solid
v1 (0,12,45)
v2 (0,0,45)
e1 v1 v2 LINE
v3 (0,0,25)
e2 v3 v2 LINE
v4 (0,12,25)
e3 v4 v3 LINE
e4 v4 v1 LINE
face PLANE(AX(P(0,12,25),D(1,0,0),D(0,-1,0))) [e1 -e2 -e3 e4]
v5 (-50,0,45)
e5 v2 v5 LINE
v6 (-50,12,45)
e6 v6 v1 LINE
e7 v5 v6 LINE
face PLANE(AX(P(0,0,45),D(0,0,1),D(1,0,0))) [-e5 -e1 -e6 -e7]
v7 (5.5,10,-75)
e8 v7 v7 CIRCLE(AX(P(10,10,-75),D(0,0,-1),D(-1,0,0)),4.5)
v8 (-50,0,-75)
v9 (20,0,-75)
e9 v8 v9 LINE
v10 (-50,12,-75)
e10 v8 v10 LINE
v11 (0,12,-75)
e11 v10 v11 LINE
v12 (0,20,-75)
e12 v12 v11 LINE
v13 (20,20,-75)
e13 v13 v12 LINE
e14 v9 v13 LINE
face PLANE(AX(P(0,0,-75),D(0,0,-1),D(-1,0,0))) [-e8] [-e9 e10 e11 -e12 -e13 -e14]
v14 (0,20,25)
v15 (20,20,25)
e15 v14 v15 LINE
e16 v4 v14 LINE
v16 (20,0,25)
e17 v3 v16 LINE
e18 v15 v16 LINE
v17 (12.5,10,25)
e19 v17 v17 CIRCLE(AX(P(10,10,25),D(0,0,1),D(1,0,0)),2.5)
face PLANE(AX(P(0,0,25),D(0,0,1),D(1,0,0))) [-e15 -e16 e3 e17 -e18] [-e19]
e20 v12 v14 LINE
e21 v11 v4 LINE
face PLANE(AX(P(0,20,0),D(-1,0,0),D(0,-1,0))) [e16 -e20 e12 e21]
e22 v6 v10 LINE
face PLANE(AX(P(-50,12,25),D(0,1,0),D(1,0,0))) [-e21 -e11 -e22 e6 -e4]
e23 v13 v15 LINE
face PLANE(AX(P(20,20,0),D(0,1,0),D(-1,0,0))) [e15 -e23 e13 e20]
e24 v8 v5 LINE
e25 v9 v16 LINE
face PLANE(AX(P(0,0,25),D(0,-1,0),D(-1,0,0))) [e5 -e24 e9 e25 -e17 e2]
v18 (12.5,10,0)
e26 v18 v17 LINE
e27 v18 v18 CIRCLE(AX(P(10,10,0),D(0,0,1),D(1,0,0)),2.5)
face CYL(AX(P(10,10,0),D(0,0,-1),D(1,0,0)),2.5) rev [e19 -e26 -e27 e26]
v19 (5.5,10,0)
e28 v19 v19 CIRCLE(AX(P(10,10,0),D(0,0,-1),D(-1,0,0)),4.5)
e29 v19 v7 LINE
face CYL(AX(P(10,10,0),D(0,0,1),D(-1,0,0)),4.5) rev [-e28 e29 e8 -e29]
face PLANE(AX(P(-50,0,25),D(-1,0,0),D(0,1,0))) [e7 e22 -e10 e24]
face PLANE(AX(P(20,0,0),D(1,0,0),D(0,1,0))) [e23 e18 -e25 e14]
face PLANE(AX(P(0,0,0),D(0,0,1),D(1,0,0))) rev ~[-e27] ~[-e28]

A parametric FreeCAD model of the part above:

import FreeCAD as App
import Part
import Sketcher

V = App.Vector
Q = App.Units.Quantity


def add_polygon(sketch, points):
    """Adds a closed chain of lines whose ends are joined by coincident constraints."""
    first, n = sketch.GeometryCount, len(points)
    for a, b in zip(points, points[1:] + points[:1]):
        sketch.addGeometry(Part.LineSegment(App.Vector(*a, 0), App.Vector(*b, 0)), False)
    for i in range(n):
        sketch.addConstraint(Sketcher.Constraint("Coincident", first + i, 2, first + (i + 1) % n, 1))

doc = App.newDocument("Part")
body = doc.addObject("PartDesign::Body", "Body")

sketch1 = doc.addObject("Sketcher::SketchObject", "Sketch")
body.addObject(sketch1)
sketch1.AttachmentSupport = (doc.XY_Plane, [""])
sketch1.MapMode = "FlatFace"
add_polygon(sketch1, [(20, 20), (0, 20), (0, 0), (20, 0)])
sketch1.addGeometry(Part.Circle(V(10, 10, 0), V(0, 0, 1), 2.5), False)
sketch1.addConstraint(Sketcher.Constraint("Horizontal", 0))
sketch1.addConstraint(Sketcher.Constraint("Vertical", 1))
sketch1.addConstraint(Sketcher.Constraint("Horizontal", 2))
sketch1.addConstraint(Sketcher.Constraint("Vertical", 3))
sketch1.addConstraint(Sketcher.Constraint("Coincident", 1, 2, -1, 1))
sketch1.addConstraint(Sketcher.Constraint("Equal", 2, 1))
sketch1.addConstraint(Sketcher.Constraint("Diameter", 4, Q("5 mm")))
sketch1.addConstraint(Sketcher.Constraint("DistanceX", 0, 2, 0, 1, Q("20 mm")))
sketch1.addConstraint(Sketcher.Constraint("DistanceX", -1, 1, 4, 3, Q("10 mm")))
sketch1.addConstraint(Sketcher.Constraint("DistanceY", -1, 1, 4, 3, Q("10 mm")))
pad1 = doc.addObject("PartDesign::Pad", "Pad")
body.addObject(pad1)
pad1.Profile = sketch1
pad1.Length = 25

sketch2 = doc.addObject("Sketcher::SketchObject", "Sketch001")
body.addObject(sketch2)
sketch2.AttachmentSupport = (doc.XY_Plane, [""])
sketch2.MapMode = "FlatFace"
sketch2.AttachmentOffset = App.Placement(V(0, 0, 25), App.Rotation())
add_polygon(sketch2, [(-50, 0), (0, 0), (0, 12), (-50, 12)])
sketch2.addConstraint(Sketcher.Constraint("Horizontal", 0))
sketch2.addConstraint(Sketcher.Constraint("Vertical", 1))
sketch2.addConstraint(Sketcher.Constraint("Horizontal", 2))
sketch2.addConstraint(Sketcher.Constraint("Vertical", 3))
sketch2.addConstraint(Sketcher.Constraint("Coincident", 0, 2, -1, 1))
sketch2.addConstraint(Sketcher.Constraint("DistanceX", 0, 1, 0, 2, Q("50 mm")))
sketch2.addConstraint(Sketcher.Constraint("DistanceY", 1, 1, 1, 2, Q("12 mm")))
pad2 = doc.addObject("PartDesign::Pad", "Pad001")
body.addObject(pad2)
pad2.Profile = sketch2
pad2.Length = 100
pad2.Reversed = True

sketch3 = doc.addObject("Sketcher::SketchObject", "Sketch002")
body.addObject(sketch3)
sketch3.AttachmentSupport = (doc.XY_Plane, [""])
sketch3.MapMode = "FlatFace"
add_polygon(sketch3, [(20, 0), (0, 0), (0, 20), (20, 20)])
sketch3.addGeometry(Part.Circle(V(10, 10, 0), V(0, 0, 1), 4.5), False)
sketch3.addConstraint(Sketcher.Constraint("Horizontal", 0))
sketch3.addConstraint(Sketcher.Constraint("Vertical", 1))
sketch3.addConstraint(Sketcher.Constraint("Horizontal", 2))
sketch3.addConstraint(Sketcher.Constraint("Vertical", 3))
sketch3.addConstraint(Sketcher.Constraint("Coincident", 0, 2, -1, 1))
sketch3.addConstraint(Sketcher.Constraint("Equal", 2, 1))
sketch3.addConstraint(Sketcher.Constraint("Diameter", 4, Q("9 mm")))
sketch3.addConstraint(Sketcher.Constraint("DistanceX", 0, 2, 0, 1, Q("20 mm")))
sketch3.addConstraint(Sketcher.Constraint("DistanceX", -1, 1, 4, 3, Q("10 mm")))
sketch3.addConstraint(Sketcher.Constraint("DistanceY", -1, 1, 4, 3, Q("10 mm")))
pad3 = doc.addObject("PartDesign::Pad", "Pad002")
body.addObject(pad3)
pad3.Profile = sketch3
pad3.Length = 75
pad3.Reversed = True

sketch4 = doc.addObject("Sketcher::SketchObject", "Sketch003")
body.addObject(sketch4)
sketch4.AttachmentSupport = (doc.XY_Plane, [""])
sketch4.MapMode = "FlatFace"
sketch4.AttachmentOffset = App.Placement(V(0, 0, 25), App.Rotation())
add_polygon(sketch4, [(-50, 12), (-50, 0), (0, 0), (0, 12)])
sketch4.addConstraint(Sketcher.Constraint("Vertical", 0))
sketch4.addConstraint(Sketcher.Constraint("Horizontal", 1))
sketch4.addConstraint(Sketcher.Constraint("Vertical", 2))
sketch4.addConstraint(Sketcher.Constraint("Horizontal", 3))
sketch4.addConstraint(Sketcher.Constraint("Coincident", 1, 2, -1, 1))
sketch4.addConstraint(Sketcher.Constraint("DistanceX", 1, 1, 1, 2, Q("50 mm")))
sketch4.addConstraint(Sketcher.Constraint("DistanceY", 0, 2, 0, 1, Q("12 mm")))
pad4 = doc.addObject("PartDesign::Pad", "Pad003")
body.addObject(pad4)
pad4.Profile = sketch4
pad4.Length = 20

doc.recompute()
